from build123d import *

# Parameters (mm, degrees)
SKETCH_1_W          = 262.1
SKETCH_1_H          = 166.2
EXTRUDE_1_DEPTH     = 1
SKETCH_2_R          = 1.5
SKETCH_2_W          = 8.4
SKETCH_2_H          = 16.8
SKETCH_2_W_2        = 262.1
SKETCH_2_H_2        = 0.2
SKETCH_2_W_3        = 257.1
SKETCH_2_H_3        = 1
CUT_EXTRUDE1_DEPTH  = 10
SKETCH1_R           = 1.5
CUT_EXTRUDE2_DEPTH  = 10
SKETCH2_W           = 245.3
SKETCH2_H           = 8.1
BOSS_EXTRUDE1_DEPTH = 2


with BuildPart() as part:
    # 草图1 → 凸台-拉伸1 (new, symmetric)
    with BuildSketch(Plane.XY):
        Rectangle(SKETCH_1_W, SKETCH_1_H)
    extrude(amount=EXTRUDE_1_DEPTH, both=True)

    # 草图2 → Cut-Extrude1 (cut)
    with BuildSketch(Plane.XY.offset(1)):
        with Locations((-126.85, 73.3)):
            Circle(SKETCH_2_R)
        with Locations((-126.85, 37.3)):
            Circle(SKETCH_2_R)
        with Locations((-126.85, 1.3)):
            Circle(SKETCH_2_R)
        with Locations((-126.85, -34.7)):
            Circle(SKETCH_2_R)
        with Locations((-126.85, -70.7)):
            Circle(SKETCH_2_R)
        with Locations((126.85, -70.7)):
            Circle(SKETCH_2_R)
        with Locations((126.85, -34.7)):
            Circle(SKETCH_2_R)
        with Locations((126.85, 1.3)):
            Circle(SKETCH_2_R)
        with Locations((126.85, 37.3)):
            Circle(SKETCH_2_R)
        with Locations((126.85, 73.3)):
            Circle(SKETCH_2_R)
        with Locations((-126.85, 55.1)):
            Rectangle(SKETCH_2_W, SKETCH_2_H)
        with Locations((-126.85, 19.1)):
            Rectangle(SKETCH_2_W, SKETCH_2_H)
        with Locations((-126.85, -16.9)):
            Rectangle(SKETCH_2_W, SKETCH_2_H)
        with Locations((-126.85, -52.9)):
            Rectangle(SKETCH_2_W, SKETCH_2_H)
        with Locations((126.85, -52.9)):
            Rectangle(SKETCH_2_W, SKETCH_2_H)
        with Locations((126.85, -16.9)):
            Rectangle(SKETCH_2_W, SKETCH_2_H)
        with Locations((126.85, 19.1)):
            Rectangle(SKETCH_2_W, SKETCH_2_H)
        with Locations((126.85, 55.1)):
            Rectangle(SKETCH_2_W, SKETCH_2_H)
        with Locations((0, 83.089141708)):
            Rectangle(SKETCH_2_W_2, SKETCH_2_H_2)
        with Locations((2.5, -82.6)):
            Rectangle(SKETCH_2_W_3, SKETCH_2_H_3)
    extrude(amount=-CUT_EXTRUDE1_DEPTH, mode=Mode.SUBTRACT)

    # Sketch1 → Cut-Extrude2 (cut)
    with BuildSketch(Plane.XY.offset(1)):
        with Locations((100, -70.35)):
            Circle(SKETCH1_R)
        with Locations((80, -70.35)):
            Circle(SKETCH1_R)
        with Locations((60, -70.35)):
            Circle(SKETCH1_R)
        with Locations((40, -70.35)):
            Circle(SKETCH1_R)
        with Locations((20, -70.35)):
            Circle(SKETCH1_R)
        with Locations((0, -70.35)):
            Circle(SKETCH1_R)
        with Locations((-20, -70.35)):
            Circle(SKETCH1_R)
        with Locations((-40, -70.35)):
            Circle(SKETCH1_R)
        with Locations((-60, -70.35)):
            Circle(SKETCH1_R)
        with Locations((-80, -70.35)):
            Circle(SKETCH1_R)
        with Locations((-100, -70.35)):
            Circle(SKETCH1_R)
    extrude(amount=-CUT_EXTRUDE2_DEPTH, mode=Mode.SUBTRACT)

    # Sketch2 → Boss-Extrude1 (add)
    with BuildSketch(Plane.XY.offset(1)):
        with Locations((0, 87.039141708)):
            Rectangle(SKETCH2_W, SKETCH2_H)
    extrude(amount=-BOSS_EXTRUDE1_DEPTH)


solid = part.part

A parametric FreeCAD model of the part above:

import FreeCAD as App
import Part
import Sketcher
from FreeCAD import Vector


def add_polygon(sketch, points):
    """Adds a closed chain of lines whose ends are joined by coincident constraints."""
    first, n = sketch.GeometryCount, len(points)
    for a, b in zip(points, points[1:] + points[:1]):
        sketch.addGeometry(Part.LineSegment(App.Vector(*a, 0), App.Vector(*b, 0)), False)
    for i in range(n):
        sketch.addConstraint(Sketcher.Constraint("Coincident", first + i, 2, first + (i + 1) % n, 1))

doc = App.newDocument("Part")
params = doc.addObject("Spreadsheet::Sheet", "Params")
for row, (alias, value) in enumerate([
    ("sketch1_width", "262.1 mm"),
    ("sketch1_height", "166.2 mm"),
    ("pad1_length", "2 mm"),
    ("sketch2_diameter", "3 mm"),
    ("sketch2_height", "1 mm"),
    ("sketch2_width", "8.4 mm"),
    ("sketch2_width2", "262.1 mm"),
    ("sketch2_width3", "257.1 mm"),
    ("pocket1_length", "10 mm"),
    ("sketch3_diameter", "3 mm"),
    ("pocket2_length", "10 mm"),
    ("sketch4_width", "245.3 mm"),
    ("sketch4_height", "8.1 mm"),
    ("pad2_length", "2 mm"),
], start=1):
    params.set(f"A{row}", alias)
    params.set(f"B{row}", "=" + value)
    params.setAlias(f"B{row}", alias)

body = doc.addObject("PartDesign::Body", "Body")

sketch1 = body.newObject("Sketcher::SketchObject", "Sketch")
sketch1.AttachmentSupport = (doc.getObject("XY_Plane"), [""])
sketch1.MapMode = "FlatFace"
add_polygon(sketch1, [(-131, 83), (-131, -83), (131, -83), (131, 83)])
sketch1.addConstraint([
    Sketcher.Constraint("Vertical", 0),
    Sketcher.Constraint("Horizontal", 1),
    Sketcher.Constraint("Vertical", 2),
    Sketcher.Constraint("Horizontal", 3),
    Sketcher.Constraint("Symmetric", 0, 2, 2, 2, -1, 1),
    Sketcher.Constraint("DistanceX", 1, 1, 1, 2, 262.1),
    Sketcher.Constraint("DistanceY", 0, 2, 0, 1, 166.2),
])
sketch1.setExpression("Constraints[9]", "Params.sketch1_width")
sketch1.setExpression("Constraints[10]", "Params.sketch1_height")
pad1 = body.newObject("PartDesign::Pad", "Pad")
pad1.Profile = sketch1
pad1.setExpression("Length", "Params.pad1_length")
pad1.Midplane = True

sketch2 = body.newObject("Sketcher::SketchObject", "Sketch001")
sketch2.AttachmentSupport = (doc.getObject("XY_Plane"), [""])
sketch2.MapMode = "FlatFace"
sketch2.AttachmentOffset = App.Placement(Vector(0, 0, 1), App.Rotation())
sketch2.addGeometry(Part.Circle(Vector(-126.85, 73.3, 0), Vector(0, 0, 1), 1.5), False)
sketch2.addGeometry(Part.Circle(Vector(-126.85, 37.3, 0), Vector(0, 0, 1), 1.5), False)
sketch2.addGeometry(Part.Circle(Vector(-126.85, 1.3, 0), Vector(0, 0, 1), 1.5), False)
sketch2.addGeometry(Part.Circle(Vector(-126.85, -34.7, 0), Vector(0, 0, 1), 1.5), False)
sketch2.addGeometry(Part.Circle(Vector(-126.85, -70.7, 0), Vector(0, 0, 1), 1.5), False)
sketch2.addGeometry(Part.Circle(Vector(126.85, -70.7, 0), Vector(0, 0, 1), 1.5), False)
sketch2.addGeometry(Part.Circle(Vector(126.85, -34.7, 0), Vector(0, 0, 1), 1.5), False)
sketch2.addGeometry(Part.Circle(Vector(126.85, 1.3, 0), Vector(0, 0, 1), 1.5), False)
sketch2.addGeometry(Part.Circle(Vector(126.85, 37.3, 0), Vector(0, 0, 1), 1.5), False)
sketch2.addGeometry(Part.Circle(Vector(126.85, 73.3, 0), Vector(0, 0, 1), 1.5), False)
add_polygon(sketch2, [(-131.05, 63.5), (-131.05, 46.7), (-122.65, 46.7), (-122.65, 63.5)])
add_polygon(sketch2, [(-131.05, 27.5), (-131.05, 10.7), (-122.65, 10.7), (-122.65, 27.5)])
add_polygon(sketch2, [(-131.05, -8.5), (-131.05, -25.3), (-122.65, -25.3), (-122.65, -8.5)])
add_polygon(sketch2, [(-131.05, -44.5), (-131.05, -61.3), (-122.65, -61.3), (-122.65, -44.5)])
add_polygon(sketch2, [(122.65, -44.5), (122.65, -61.3), (131.05, -61.3), (131.05, -44.5)])
add_polygon(sketch2, [(122.65, -8.5), (122.65, -25.3), (131.05, -25.3), (131.05, -8.5)])
add_polygon(sketch2, [(122.65, 27.5), (122.65, 10.7), (131.05, 10.7), (131.05, 27.5)])
add_polygon(sketch2, [(122.65, 63.5), (122.65, 46.7), (131.05, 46.7), (131.05, 63.5)])
add_polygon(sketch2, [(-131.05, 83.19), (-131.05, 82.99), (131.05, 82.99), (131.05, 83.19)])
add_polygon(sketch2, [(-126.05, -82.1), (-126.05, -83.1), (131.05, -83.1), (131.05, -82.1)])
sketch2.addConstraint([
    Sketcher.Constraint("Vertical", 10),
    Sketcher.Constraint("Horizontal", 11),
    Sketcher.Constraint("Vertical", 12),
    Sketcher.Constraint("Horizontal", 13),
    Sketcher.Constraint("Vertical", 14),
    Sketcher.Constraint("Horizontal", 15),
    Sketcher.Constraint("Vertical", 16),
    Sketcher.Constraint("Horizontal", 17),
    Sketcher.Constraint("Vertical", 18),
    Sketcher.Constraint("Horizontal", 19),
    Sketcher.Constraint("Vertical", 20),
    Sketcher.Constraint("Horizontal", 21),
    Sketcher.Constraint("Vertical", 22),
    Sketcher.Constraint("Horizontal", 23),
    Sketcher.Constraint("Vertical", 24),
    Sketcher.Constraint("Horizontal", 25),
    Sketcher.Constraint("Vertical", 26),
    Sketcher.Constraint("Horizontal", 27),
    Sketcher.Constraint("Vertical", 28),
    Sketcher.Constraint("Horizontal", 29),
    Sketcher.Constraint("Vertical", 30),
    Sketcher.Constraint("Horizontal", 31),
    Sketcher.Constraint("Vertical", 32),
    Sketcher.Constraint("Horizontal", 33),
    Sketcher.Constraint("Vertical", 34),
    Sketcher.Constraint("Horizontal", 35),
    Sketcher.Constraint("Vertical", 36),
    Sketcher.Constraint("Horizontal", 37),
    Sketcher.Constraint("Vertical", 38),
    Sketcher.Constraint("Horizontal", 39),
    Sketcher.Constraint("Vertical", 40),
    Sketcher.Constraint("Horizontal", 41),
    Sketcher.Constraint("Vertical", 42),
    Sketcher.Constraint("Horizontal", 43),
    Sketcher.Constraint("Vertical", 44),
    Sketcher.Constraint("Horizontal", 45),
    Sketcher.Constraint("Vertical", 46),
    Sketcher.Constraint("Horizontal", 47),
    Sketcher.Constraint("Vertical", 48),
    Sketcher.Constraint("Horizontal", 49),
    Sketcher.Constraint("Equal", 0, 1),
    Sketcher.Constraint("Equal", 1, 2),
    Sketcher.Constraint("Equal", 2, 3),
    Sketcher.Constraint("Equal", 3, 4),
    Sketcher.Constraint("Equal", 4, 5),
    Sketcher.Constraint("Equal", 5, 6),
    Sketcher.Constraint("Equal", 6, 7),
    Sketcher.Constraint("Equal", 7, 8),
    Sketcher.Constraint("Equal", 8, 9),
    Sketcher.Constraint("Symmetric", 4, 3, 5, 3, -2),
    Sketcher.Constraint("Symmetric", 3, 3, 6, 3, -2),
    Sketcher.Constraint("Symmetric", 2, 3, 7, 3, -2),
    Sketcher.Constraint("Symmetric", 1, 3, 8, 3, -2),
    Sketcher.Constraint("Symmetric", 0, 3, 9, 3, -2),
    Sketcher.Constraint("Symmetric", 23, 2, 26, 2, -2),
    Sketcher.Constraint("Symmetric", 25, 2, 28, 2, -2),
    Sketcher.Constraint("Symmetric", 19, 2, 30, 2, -2),
    Sketcher.Constraint("Symmetric", 21, 2, 32, 2, -2),
    Sketcher.Constraint("Symmetric", 15, 2, 34, 2, -2),
    Sketcher.Constraint("Symmetric", 17, 2, 36, 2, -2),
    Sketcher.Constraint("Symmetric", 11, 2, 38, 2, -2),
    Sketcher.Constraint("Symmetric", 13, 2, 40, 2, -2),
    Sketcher.Constraint("Vertical", 0, 3, 1, 3),
    Sketcher.Constraint("Vertical", 1, 3, 2, 3),
    Sketcher.Constraint("Vertical", 2, 3, 3, 3),
    Sketcher.Constraint("Vertical", 3, 3, 4, 3),
    Sketcher.Constraint("Vertical", 13, 2, 14, 2),
    Sketcher.Constraint("Vertical", 12, 2, 15, 2),
    Sketcher.Constraint("Vertical", 17, 2, 18, 2),
    Sketcher.Constraint("Vertical", 16, 2, 19, 2),
    Sketcher.Constraint("Vertical", 21, 2, 22, 2),
    Sketcher.Constraint("Vertical", 20, 2, 23, 2),
    Sketcher.Constraint("Vertical", 25, 2, 42, 2),
    Sketcher.Constraint("Vertical", 40, 2, 43, 2),
    Sketcher.Constraint("Vertical", 44, 2, 47, 2),
    Sketcher.Constraint("Equal", 12, 14),
    Sketcher.Constraint("Equal", 16, 18),
    Sketcher.Constraint("Equal", 20, 22),
    Sketcher.Constraint("Diameter", 0, 3.0),
    Sketcher.Constraint("DistanceY", 46, 2, 46, 1, 1.0),
    Sketcher.Constraint("DistanceX", 11, 1, 11, 2, 8.4),
    Sketcher.Constraint("DistanceX", 43, 1, 43, 2, 262.1),
    Sketcher.Constraint("DistanceX", 47, 1, 47, 2, 257.1),
    Sketcher.Constraint("DistanceY", 10, 2, 10, 1, 16.8),
    Sketcher.Constraint("DistanceY", 42, 2, 42, 1, 0.2),
    Sketcher.Constraint("DistanceY", 1, 3, 0, 3, 36.0),
    Sketcher.Constraint("DistanceY", 2, 3, 1, 3, 36.0),
    Sketcher.Constraint("DistanceY", 3, 3, 2, 3, 36.0),
    Sketcher.Constraint("DistanceY", 4, 3, 3, 3, 36.0),
    Sketcher.Constraint("DistanceY", 14, 2, 10, 2, 36.0),
    Sketcher.Constraint("DistanceY", 18, 2, 14, 2, 36.0),
    Sketcher.Constraint("DistanceY", 22, 2, 18, 2, 36.0),
    Sketcher.Constraint("DistanceY", -1, 1, 0, 3, 73.3),
    Sketcher.Constraint("DistanceY", -1, 1, 10, 2, 46.7),
    Sketcher.Constraint("DistanceY", 46, 2, -1, 1, 83.1),
    Sketcher.Constraint("DistanceX", 4, 3, 5, 3, 253.7),
    Sketcher.Constraint("DistanceY", -1, 1, 42, 2, 82.989142),
])
sketch2.setExpression("Constraints[118]", "Params.sketch2_diameter")
sketch2.setExpression("Constraints[119]", "Params.sketch2_height")
sketch2.setExpression("Constraints[120]", "Params.sketch2_width")
sketch2.setExpression("Constraints[121]", "Params.sketch2_width2")
sketch2.setExpression("Constraints[122]", "Params.sketch2_width3")
pocket1 = body.newObject("PartDesign::Pocket", "Pocket")
pocket1.Profile = sketch2
pocket1.setExpression("Length", "Params.pocket1_length")

sketch3 = body.newObject("Sketcher::SketchObject", "Sketch002")
sketch3.AttachmentSupport = (doc.getObject("XY_Plane"), [""])
sketch3.MapMode = "FlatFace"
sketch3.AttachmentOffset = App.Placement(Vector(0, 0, 1), App.Rotation())
sketch3.addGeometry([
    Part.Circle(Vector(100, -70.3, 0), Vector(0, 0, 1), 1.5),
    Part.Circle(Vector(80, -70.3, 0), Vector(0, 0, 1), 1.5),
    Part.Circle(Vector(60, -70.3, 0), Vector(0, 0, 1), 1.5),
    Part.Circle(Vector(40, -70.3, 0), Vector(0, 0, 1), 1.5),
    Part.Circle(Vector(20, -70.3, 0), Vector(0, 0, 1), 1.5),
    Part.Circle(Vector(0, -70.3, 0), Vector(0, 0, 1), 1.5),
    Part.Circle(Vector(-20, -70.3, 0), Vector(0, 0, 1), 1.5),
    Part.Circle(Vector(-40, -70.3, 0), Vector(0, 0, 1), 1.5),
    Part.Circle(Vector(-60, -70.3, 0), Vector(0, 0, 1), 1.5),
    Part.Circle(Vector(-80, -70.3, 0), Vector(0, 0, 1), 1.5),
    Part.Circle(Vector(-100, -70.3, 0), Vector(0, 0, 1), 1.5),
], False)
sketch3.addConstraint([
    Sketcher.Constraint("Equal", 0, 1),
    Sketcher.Constraint("Equal", 1, 2),
    Sketcher.Constraint("Equal", 2, 3),
    Sketcher.Constraint("Equal", 3, 4),
    Sketcher.Constraint("Equal", 4, 5),
    Sketcher.Constraint("Equal", 5, 6),
    Sketcher.Constraint("Equal", 6, 7),
    Sketcher.Constraint("Equal", 7, 8),
    Sketcher.Constraint("Equal", 8, 9),
    Sketcher.Constraint("Equal", 9, 10),
    Sketcher.Constraint("Symmetric", 4, 3, 6, 3, -2),
    Sketcher.Constraint("Symmetric", 3, 3, 7, 3, -2),
    Sketcher.Constraint("Symmetric", 2, 3, 8, 3, -2),
    Sketcher.Constraint("Symmetric", 1, 3, 9, 3, -2),
    Sketcher.Constraint("Symmetric", 0, 3, 10, 3, -2),
    Sketcher.Constraint("PointOnObject", 5, 3, -2),
    Sketcher.Constraint("Horizontal", 0, 3, 1, 3),
    Sketcher.Constraint("Horizontal", 1, 3, 2, 3),
    Sketcher.Constraint("Horizontal", 2, 3, 3, 3),
    Sketcher.Constraint("Horizontal", 3, 3, 4, 3),
    Sketcher.Constraint("Horizontal", 4, 3, 5, 3),
    Sketcher.Constraint("Diameter", 0, 3.0),
    Sketcher.Constraint("DistanceX", -1, 1, 0, 3, 100.0),
    Sketcher.Constraint("DistanceX", -1, 1, 1, 3, 80.0),
    Sketcher.Constraint("DistanceX", -1, 1, 2, 3, 60.0),
    Sketcher.Constraint("DistanceX", -1, 1, 3, 3, 40.0),
    Sketcher.Constraint("DistanceX", -1, 1, 4, 3, 20.0),
    Sketcher.Constraint("DistanceY", 0, 3, -1, 1, 70.35),
])
sketch3.setExpression("Constraints[21]", "Params.sketch3_diameter")
pocket2 = body.newObject("PartDesign::Pocket", "Pocket001")
pocket2.Profile = sketch3
pocket2.setExpression("Length", "Params.pocket2_length")

sketch4 = body.newObject("Sketcher::SketchObject", "Sketch003")
sketch4.AttachmentSupport = (doc.getObject("XY_Plane"), [""])
sketch4.MapMode = "FlatFace"
sketch4.AttachmentOffset = App.Placement(Vector(0, 0, 1), App.Rotation())
add_polygon(sketch4, [(-123, 91), (-123, 83), (123, 83), (123, 91)])
sketch4.addConstraint([
    Sketcher.Constraint("Vertical", 0),
    Sketcher.Constraint("Horizontal", 1),
    Sketcher.Constraint("Vertical", 2),
    Sketcher.Constraint("Horizontal", 3),
    Sketcher.Constraint("DistanceX", 1, 1, 1, 2, 245.3),
    Sketcher.Constraint("DistanceY", 0, 2, 0, 1, 8.1),
    Sketcher.Constraint("DistanceX", 0, 2, -1, 1, 122.65),
    Sketcher.Constraint("DistanceY", -1, 1, 0, 2, 82.989142),
])
sketch4.setExpression("Constraints[8]", "Params.sketch4_width")
sketch4.setExpression("Constraints[9]", "Params.sketch4_height")
pad2 = body.newObject("PartDesign::Pad", "Pad001")
pad2.Profile = sketch4
pad2.setExpression("Length", "Params.pad2_length")
pad2.Reversed = True

doc.recompute()
